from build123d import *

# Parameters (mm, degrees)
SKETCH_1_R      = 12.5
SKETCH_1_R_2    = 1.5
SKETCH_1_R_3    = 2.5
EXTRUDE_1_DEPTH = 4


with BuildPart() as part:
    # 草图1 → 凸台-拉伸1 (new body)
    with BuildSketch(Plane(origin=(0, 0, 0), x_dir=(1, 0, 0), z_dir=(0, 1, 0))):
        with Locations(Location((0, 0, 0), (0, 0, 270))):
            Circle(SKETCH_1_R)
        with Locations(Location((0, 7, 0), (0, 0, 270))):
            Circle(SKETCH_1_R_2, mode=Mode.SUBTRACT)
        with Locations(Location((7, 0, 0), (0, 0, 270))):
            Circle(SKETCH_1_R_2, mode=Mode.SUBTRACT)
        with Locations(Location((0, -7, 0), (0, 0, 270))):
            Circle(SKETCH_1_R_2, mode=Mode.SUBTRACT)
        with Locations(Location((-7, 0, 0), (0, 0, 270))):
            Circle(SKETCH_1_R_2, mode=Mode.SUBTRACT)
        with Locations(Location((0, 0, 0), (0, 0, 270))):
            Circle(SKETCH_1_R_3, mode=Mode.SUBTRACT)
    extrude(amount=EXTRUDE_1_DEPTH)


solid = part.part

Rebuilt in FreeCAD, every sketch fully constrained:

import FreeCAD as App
import Part
import Sketcher
Q = App.Units.Quantity

doc = App.newDocument("Part")
body = doc.addObject("PartDesign::Body", "Body")

# Sketch on XZ plane
sketch1 = body.newObject("Sketcher::SketchObject", "Sketch")
sketch1.AttachmentSupport = (doc.getObject("XZ_Plane"), [""])
sketch1.MapMode = "FlatFace"
sketch1.addGeometry(Part.Circle(App.Vector(0, 0, 0), App.Vector(0, 0, 1), 12.5), False)
sketch1.addGeometry(Part.Circle(App.Vector(0, -7, 0), App.Vector(0, 0, 1), 1.5), False)
sketch1.addGeometry(Part.Circle(App.Vector(-7, 0, 0), App.Vector(0, 0, 1), 1.5), False)
sketch1.addGeometry(Part.Circle(App.Vector(7, 0, 0), App.Vector(0, 0, 1), 1.5), False)
sketch1.addGeometry(Part.Circle(App.Vector(0, 0, 0), App.Vector(0, 0, 1), 2.5), False)
sketch1.addGeometry(Part.Circle(App.Vector(0, 7, 0), App.Vector(0, 0, 1), 1.5), False)
sketch1.addConstraint(Sketcher.Constraint("Coincident", 0, 3, -1, 1))
sketch1.addConstraint(Sketcher.Constraint("Coincident", 4, 3, -1, 1))
sketch1.addConstraint(Sketcher.Constraint("Equal", 1, 2))
sketch1.addConstraint(Sketcher.Constraint("Equal", 2, 3))
sketch1.addConstraint(Sketcher.Constraint("Equal", 3, 5))
sketch1.addConstraint(Sketcher.Constraint("Symmetric", 2, 3, 3, 3, -1, 1))
sketch1.addConstraint(Sketcher.Constraint("Symmetric", 1, 3, 5, 3, -1, 1))
sketch1.addConstraint(Sketcher.Constraint("PointOnObject", 1, 3, -2))
sketch1.addConstraint(Sketcher.Constraint("PointOnObject", 2, 3, -1))
sketch1.addConstraint(Sketcher.Constraint("Diameter", 0, Q("25 mm")))
sketch1.addConstraint(Sketcher.Constraint("Diameter", 1, Q("3 mm")))
sketch1.addConstraint(Sketcher.Constraint("Diameter", 4, Q("5 mm")))
sketch1.addConstraint(Sketcher.Constraint("DistanceY", 1, 3, -1, 1, Q("7 mm")))
sketch1.addConstraint(Sketcher.Constraint("DistanceX", 2, 3, -1, 1, Q("7 mm")))
pad1 = body.newObject("PartDesign::Pad", "Pad")
pad1.Profile = sketch1
pad1.Length = 4
pad1.Reversed = True

doc.recompute()
